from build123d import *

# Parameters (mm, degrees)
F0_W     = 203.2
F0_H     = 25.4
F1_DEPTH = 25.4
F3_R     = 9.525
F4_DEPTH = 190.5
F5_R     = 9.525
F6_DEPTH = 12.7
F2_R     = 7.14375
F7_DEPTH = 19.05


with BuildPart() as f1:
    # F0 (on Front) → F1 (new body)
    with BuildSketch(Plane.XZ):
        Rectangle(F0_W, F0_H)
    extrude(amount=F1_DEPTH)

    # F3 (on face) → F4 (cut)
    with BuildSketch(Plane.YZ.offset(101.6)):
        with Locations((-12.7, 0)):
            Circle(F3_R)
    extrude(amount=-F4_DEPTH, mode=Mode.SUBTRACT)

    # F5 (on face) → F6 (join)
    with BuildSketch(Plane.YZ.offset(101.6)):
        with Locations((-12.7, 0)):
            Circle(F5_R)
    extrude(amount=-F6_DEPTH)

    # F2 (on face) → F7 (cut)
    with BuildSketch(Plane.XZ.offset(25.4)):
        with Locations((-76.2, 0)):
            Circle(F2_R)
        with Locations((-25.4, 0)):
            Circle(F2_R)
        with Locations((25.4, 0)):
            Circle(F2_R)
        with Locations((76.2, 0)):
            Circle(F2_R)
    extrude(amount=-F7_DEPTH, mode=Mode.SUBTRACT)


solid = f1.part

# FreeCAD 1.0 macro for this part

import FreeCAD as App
import Part
import Sketcher
Q = App.Units.Quantity


def add_polygon(sketch, points):
    """Adds a closed chain of lines whose ends are joined by coincident constraints."""
    first, n = sketch.GeometryCount, len(points)
    for a, b in zip(points, points[1:] + points[:1]):
        sketch.addGeometry(Part.LineSegment(App.Vector(*a, 0), App.Vector(*b, 0)), False)
    for i in range(n):
        sketch.addConstraint(Sketcher.Constraint("Coincident", first + i, 2, first + (i + 1) % n, 1))

doc = App.newDocument("Part")
body = doc.addObject("PartDesign::Body", "Body")

# Sketch on XZ plane
sketch1 = body.newObject("Sketcher::SketchObject", "Sketch")
sketch1.AttachmentSupport = (doc.getObject("XZ_Plane"), [""])
sketch1.MapMode = "FlatFace"
add_polygon(sketch1, [(-102, 13), (-102, -13), (102, -13), (102, 13)])  # lines 0-3
sketch1.addConstraint(Sketcher.Constraint("Vertical", 0))
sketch1.addConstraint(Sketcher.Constraint("Horizontal", 1))
sketch1.addConstraint(Sketcher.Constraint("Vertical", 2))
sketch1.addConstraint(Sketcher.Constraint("Horizontal", 3))
sketch1.addConstraint(Sketcher.Constraint("Symmetric", 0, 2, 2, 2, -1, 1))
sketch1.addConstraint(Sketcher.Constraint("DistanceX", 1, 1, 1, 2, Q("8 in")))
sketch1.addConstraint(Sketcher.Constraint("DistanceY", 0, 2, 0, 1, Q("1 in")))
pad1 = body.newObject("PartDesign::Pad", "Pad")
pad1.Profile = sketch1
pad1.Length = Q("1 in")

# Sketch on YZ plane
sketch2 = body.newObject("Sketcher::SketchObject", "Sketch001")
sketch2.AttachmentSupport = (doc.getObject("YZ_Plane"), [""])
sketch2.MapMode = "FlatFace"
sketch2.AttachmentOffset = App.Placement(App.Vector(0, 0, 4 * 25.4), App.Rotation())
sketch2.addGeometry(Part.Circle(App.Vector(-13, 0, 0), App.Vector(0, 0, 1), 10), False)
sketch2.addConstraint(Sketcher.Constraint("PointOnObject", 0, 3, -1))
sketch2.addConstraint(Sketcher.Constraint("Diameter", 0, Q("0.75 in")))
sketch2.addConstraint(Sketcher.Constraint("DistanceX", 0, 3, -1, 1, Q("0.5 in")))
pocket1 = body.newObject("PartDesign::Pocket", "Pocket")
pocket1.Profile = sketch2
pocket1.Length = Q("7.5 in")

# Sketch on YZ plane
sketch3 = body.newObject("Sketcher::SketchObject", "Sketch002")
sketch3.AttachmentSupport = (doc.getObject("YZ_Plane"), [""])
sketch3.MapMode = "FlatFace"
sketch3.AttachmentOffset = App.Placement(App.Vector(0, 0, 4 * 25.4), App.Rotation())
sketch3.addGeometry(Part.Circle(App.Vector(-13, 0, 0), App.Vector(0, 0, 1), 10), False)
sketch3.addConstraint(Sketcher.Constraint("PointOnObject", 0, 3, -1))
sketch3.addConstraint(Sketcher.Constraint("Diameter", 0, Q("0.75 in")))
sketch3.addConstraint(Sketcher.Constraint("DistanceX", 0, 3, -1, 1, Q("0.5 in")))
pad2 = body.newObject("PartDesign::Pad", "Pad001")
pad2.Profile = sketch3
pad2.Length = Q("0.5 in")
pad2.Reversed = True

# Sketch on XZ plane
sketch4 = body.newObject("Sketcher::SketchObject", "Sketch003")
sketch4.AttachmentSupport = (doc.getObject("XZ_Plane"), [""])
sketch4.MapMode = "FlatFace"
sketch4.AttachmentOffset = App.Placement(App.Vector(0, 0, 1 * 25.4), App.Rotation())
sketch4.addGeometry(Part.Circle(App.Vector(-76, 0, 0), App.Vector(0, 0, 1), 7), False)
sketch4.addGeometry(Part.Circle(App.Vector(-25, 0, 0), App.Vector(0, 0, 1), 7), False)
sketch4.addGeometry(Part.Circle(App.Vector(25, 0, 0), App.Vector(0, 0, 1), 7), False)
sketch4.addGeometry(Part.Circle(App.Vector(76, 0, 0), App.Vector(0, 0, 1), 7), False)
sketch4.addConstraint(Sketcher.Constraint("Equal", 0, 1))
sketch4.addConstraint(Sketcher.Constraint("Equal", 1, 2))
sketch4.addConstraint(Sketcher.Constraint("Equal", 2, 3))
sketch4.addConstraint(Sketcher.Constraint("Symmetric", 1, 3, 2, 3, -1, 1))
sketch4.addConstraint(Sketcher.Constraint("Symmetric", 0, 3, 3, 3, -1, 1))
sketch4.addConstraint(Sketcher.Constraint("PointOnObject", 0, 3, -1))
sketch4.addConstraint(Sketcher.Constraint("PointOnObject", 1, 3, -1))
sketch4.addConstraint(Sketcher.Constraint("Diameter", 0, Q("0.5625 in")))
sketch4.addConstraint(Sketcher.Constraint("DistanceX", 0, 3, -1, 1, Q("3 in")))
sketch4.addConstraint(Sketcher.Constraint("DistanceX", 1, 3, -1, 1, Q("1 in")))
pocket2 = body.newObject("PartDesign::Pocket", "Pocket001")
pocket2.Profile = sketch4
pocket2.Length = Q("0.75 in")

doc.recompute()
